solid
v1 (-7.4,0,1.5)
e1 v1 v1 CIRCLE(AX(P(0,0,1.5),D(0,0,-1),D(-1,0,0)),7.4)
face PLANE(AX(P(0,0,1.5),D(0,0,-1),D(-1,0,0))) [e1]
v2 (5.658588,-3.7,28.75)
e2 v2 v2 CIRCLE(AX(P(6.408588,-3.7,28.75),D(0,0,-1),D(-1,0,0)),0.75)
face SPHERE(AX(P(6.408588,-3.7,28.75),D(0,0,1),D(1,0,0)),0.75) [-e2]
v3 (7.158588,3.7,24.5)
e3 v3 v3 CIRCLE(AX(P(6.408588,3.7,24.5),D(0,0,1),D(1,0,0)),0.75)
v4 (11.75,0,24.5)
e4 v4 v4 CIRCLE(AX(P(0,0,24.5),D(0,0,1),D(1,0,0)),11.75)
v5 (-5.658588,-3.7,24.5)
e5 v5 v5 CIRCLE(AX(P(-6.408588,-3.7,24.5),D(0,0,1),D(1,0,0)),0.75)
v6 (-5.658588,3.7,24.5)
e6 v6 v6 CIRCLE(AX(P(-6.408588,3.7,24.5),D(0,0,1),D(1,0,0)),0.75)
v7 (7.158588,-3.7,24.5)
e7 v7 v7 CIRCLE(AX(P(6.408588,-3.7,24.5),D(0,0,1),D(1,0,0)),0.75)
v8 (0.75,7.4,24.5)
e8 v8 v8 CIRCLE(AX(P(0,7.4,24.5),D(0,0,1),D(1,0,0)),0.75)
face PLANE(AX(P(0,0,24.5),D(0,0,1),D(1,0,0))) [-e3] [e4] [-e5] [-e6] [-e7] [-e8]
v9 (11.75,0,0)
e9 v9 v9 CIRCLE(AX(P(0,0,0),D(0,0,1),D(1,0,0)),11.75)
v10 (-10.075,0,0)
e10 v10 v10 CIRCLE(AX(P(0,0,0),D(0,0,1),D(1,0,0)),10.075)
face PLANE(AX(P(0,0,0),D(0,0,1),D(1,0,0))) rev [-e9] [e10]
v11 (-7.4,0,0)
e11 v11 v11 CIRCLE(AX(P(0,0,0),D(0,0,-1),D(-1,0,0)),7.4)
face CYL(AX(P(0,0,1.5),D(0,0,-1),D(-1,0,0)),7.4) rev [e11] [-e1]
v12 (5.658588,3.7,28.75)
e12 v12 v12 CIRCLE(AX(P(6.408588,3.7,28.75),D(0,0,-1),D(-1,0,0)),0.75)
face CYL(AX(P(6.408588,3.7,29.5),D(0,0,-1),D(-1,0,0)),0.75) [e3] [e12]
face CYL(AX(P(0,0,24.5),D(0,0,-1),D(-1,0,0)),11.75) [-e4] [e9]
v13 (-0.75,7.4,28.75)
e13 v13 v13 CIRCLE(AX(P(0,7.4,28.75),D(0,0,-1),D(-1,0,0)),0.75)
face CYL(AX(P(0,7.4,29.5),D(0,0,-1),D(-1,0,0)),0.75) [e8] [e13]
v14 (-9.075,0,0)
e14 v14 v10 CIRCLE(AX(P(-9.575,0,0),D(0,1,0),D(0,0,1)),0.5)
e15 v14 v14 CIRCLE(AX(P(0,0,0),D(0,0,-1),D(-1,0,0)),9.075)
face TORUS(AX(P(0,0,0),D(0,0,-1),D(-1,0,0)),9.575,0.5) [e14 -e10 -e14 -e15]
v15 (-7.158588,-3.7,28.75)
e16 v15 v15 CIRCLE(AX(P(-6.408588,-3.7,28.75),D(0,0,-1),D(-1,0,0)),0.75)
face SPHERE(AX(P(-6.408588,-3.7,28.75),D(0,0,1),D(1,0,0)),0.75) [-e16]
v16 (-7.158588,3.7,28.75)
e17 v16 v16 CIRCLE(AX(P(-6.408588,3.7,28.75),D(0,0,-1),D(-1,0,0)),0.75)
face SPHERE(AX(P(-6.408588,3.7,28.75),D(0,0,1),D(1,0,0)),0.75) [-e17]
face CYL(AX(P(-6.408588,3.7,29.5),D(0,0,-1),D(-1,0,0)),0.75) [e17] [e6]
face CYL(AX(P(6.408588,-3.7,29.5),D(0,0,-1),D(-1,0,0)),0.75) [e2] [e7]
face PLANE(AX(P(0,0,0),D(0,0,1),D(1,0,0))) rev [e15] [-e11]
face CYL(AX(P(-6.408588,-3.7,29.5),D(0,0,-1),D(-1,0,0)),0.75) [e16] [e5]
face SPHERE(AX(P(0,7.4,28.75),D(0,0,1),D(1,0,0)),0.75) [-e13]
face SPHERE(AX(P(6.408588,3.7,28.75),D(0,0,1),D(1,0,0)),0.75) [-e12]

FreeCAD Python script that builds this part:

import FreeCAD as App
import Part
import Sketcher

V = App.Vector
Q = App.Units.Quantity


def edges_at(feature, points):
    """Names of the edges that pass closest to the given points."""
    edges = feature.Shape.Edges
    near = lambda p: min(range(len(edges)), key=lambda i: edges[i].distToShape(Part.Vertex(*p))[0])
    return sorted({f"Edge{near(p) + 1}" for p in points})

doc = App.newDocument("Part")
body = doc.addObject("PartDesign::Body", "Body")

# Sketch on XY plane
sketch1 = body.newObject("Sketcher::SketchObject", "Sketch")
sketch1.AttachmentSupport = (doc.getObject("XY_Plane"), [""])
sketch1.MapMode = "FlatFace"
sketch1.addGeometry(Part.Circle(V(0, 0, 0), V(0, 0, 1), 12), False)
sketch1.addConstraint(Sketcher.Constraint("Coincident", 0, 3, -1, 1))
sketch1.addConstraint(Sketcher.Constraint("Diameter", 0, Q("23.5 mm")))
pad1 = body.newObject("PartDesign::Pad", "Pad")
pad1.Profile = sketch1
pad1.Length = 24.5

# Sketch on XY plane
sketch2 = body.newObject("Sketcher::SketchObject", "Sketch001")
sketch2.AttachmentSupport = (doc.getObject("XY_Plane"), [""])
sketch2.MapMode = "FlatFace"
sketch2.AttachmentOffset = App.Placement(V(0, 0, 24.5), App.Rotation())
sketch2.addGeometry(Part.Circle(V(-6.4, 3.7, 0), V(0, 0, 1), 0.8), False)
sketch2.addGeometry(Part.Circle(V(0, 7.4, 0), V(0, 0, 1), 0.8), False)
sketch2.addGeometry(Part.Circle(V(6.4, 3.7, 0), V(0, 0, 1), 0.8), False)
sketch2.addGeometry(Part.Circle(V(6.4, -3.7, 0), V(0, 0, 1), 0.8), False)
sketch2.addGeometry(Part.Circle(V(-6.4, -3.7, 0), V(0, 0, 1), 0.8), False)
sketch2.addConstraint(Sketcher.Constraint("Equal", 0, 1))
sketch2.addConstraint(Sketcher.Constraint("Equal", 1, 2))
sketch2.addConstraint(Sketcher.Constraint("Equal", 2, 3))
sketch2.addConstraint(Sketcher.Constraint("Equal", 3, 4))
sketch2.addConstraint(Sketcher.Constraint("Symmetric", 0, 3, 3, 3, -1, 1))
sketch2.addConstraint(Sketcher.Constraint("Symmetric", 2, 3, 4, 3, -1, 1))
sketch2.addConstraint(Sketcher.Constraint("Symmetric", 0, 3, 2, 3, -2))
sketch2.addConstraint(Sketcher.Constraint("PointOnObject", 1, 3, -2))
sketch2.addConstraint(Sketcher.Constraint("Diameter", 0, Q("1.5 mm")))
sketch2.addConstraint(Sketcher.Constraint("DistanceY", -1, 1, 0, 3, Q("3.7 mm")))
sketch2.addConstraint(Sketcher.Constraint("DistanceY", -1, 1, 1, 3, Q("7.4 mm")))
sketch2.addConstraint(Sketcher.Constraint("DistanceX", 0, 3, -1, 1, Q("6.408588 mm")))
pad2 = body.newObject("PartDesign::Pad", "Pad001")
pad2.Profile = sketch2
pad2.Length = 5
doc.recompute()

fillet = body.newObject("PartDesign::Fillet", "Fillet")
fillet.Base = (pad2, edges_at(pad2, [
    (5.659, 3.7, 29.5),
    (5.659, -3.7, 29.5),
    (-7.159, -3.7, 29.5),
    (-7.159, 3.7, 29.5),
    (-0.75, 7.4, 29.5),
]))
fillet.Radius = 0.75

# Sketch on XY plane
sketch3 = body.newObject("Sketcher::SketchObject", "Sketch002")
sketch3.AttachmentSupport = (doc.getObject("XY_Plane"), [""])
sketch3.MapMode = "FlatFace"
sketch3.addGeometry(Part.Circle(V(0, 0, 0), V(0, 0, 1), 7), False)
sketch3.addConstraint(Sketcher.Constraint("Coincident", 0, 3, -1, 1))
sketch3.addConstraint(Sketcher.Constraint("Diameter", 0, Q("14.8 mm")))
pocket1 = body.newObject("PartDesign::Pocket", "Pocket")
pocket1.Profile = sketch3
pocket1.Length = 1.5
pocket1.Reversed = True

# Sketch on XZ plane
sketch4 = body.newObject("Sketcher::SketchObject", "Sketch003")
sketch4.AttachmentSupport = (doc.getObject("XZ_Plane"), [""])
sketch4.MapMode = "FlatFace"
sketch4.addGeometry(Part.Circle(V(-9.6, 0, 0), V(0, 0, 1), 0.5), False)
sketch4.addConstraint(Sketcher.Constraint("PointOnObject", 0, 3, -1))
sketch4.addConstraint(Sketcher.Constraint("Diameter", 0, Q("1 mm")))
sketch4.addConstraint(Sketcher.Constraint("DistanceX", 0, 3, -1, 1, Q("9.575 mm")))

# Sketch on XY plane
sketch5 = body.newObject("Sketcher::SketchObject", "Sketch004")
sketch5.AttachmentSupport = (doc.getObject("XY_Plane"), [""])
sketch5.MapMode = "FlatFace"
sketch5.addGeometry(Part.Circle(V(0, 0, 0), V(0, 0, 1), 10), False)
sketch5.addConstraint(Sketcher.Constraint("Coincident", 0, 3, -1, 1))
sketch5.addConstraint(Sketcher.Constraint("Diameter", 0, Q("19.15 mm")))
doc.recompute()

additivepipe = body.newObject("PartDesign::AdditivePipe", "AdditivePipe")
additivepipe.Profile = sketch4
additivepipe.Spine = (sketch5, ["Edge1"])

doc.recompute()
